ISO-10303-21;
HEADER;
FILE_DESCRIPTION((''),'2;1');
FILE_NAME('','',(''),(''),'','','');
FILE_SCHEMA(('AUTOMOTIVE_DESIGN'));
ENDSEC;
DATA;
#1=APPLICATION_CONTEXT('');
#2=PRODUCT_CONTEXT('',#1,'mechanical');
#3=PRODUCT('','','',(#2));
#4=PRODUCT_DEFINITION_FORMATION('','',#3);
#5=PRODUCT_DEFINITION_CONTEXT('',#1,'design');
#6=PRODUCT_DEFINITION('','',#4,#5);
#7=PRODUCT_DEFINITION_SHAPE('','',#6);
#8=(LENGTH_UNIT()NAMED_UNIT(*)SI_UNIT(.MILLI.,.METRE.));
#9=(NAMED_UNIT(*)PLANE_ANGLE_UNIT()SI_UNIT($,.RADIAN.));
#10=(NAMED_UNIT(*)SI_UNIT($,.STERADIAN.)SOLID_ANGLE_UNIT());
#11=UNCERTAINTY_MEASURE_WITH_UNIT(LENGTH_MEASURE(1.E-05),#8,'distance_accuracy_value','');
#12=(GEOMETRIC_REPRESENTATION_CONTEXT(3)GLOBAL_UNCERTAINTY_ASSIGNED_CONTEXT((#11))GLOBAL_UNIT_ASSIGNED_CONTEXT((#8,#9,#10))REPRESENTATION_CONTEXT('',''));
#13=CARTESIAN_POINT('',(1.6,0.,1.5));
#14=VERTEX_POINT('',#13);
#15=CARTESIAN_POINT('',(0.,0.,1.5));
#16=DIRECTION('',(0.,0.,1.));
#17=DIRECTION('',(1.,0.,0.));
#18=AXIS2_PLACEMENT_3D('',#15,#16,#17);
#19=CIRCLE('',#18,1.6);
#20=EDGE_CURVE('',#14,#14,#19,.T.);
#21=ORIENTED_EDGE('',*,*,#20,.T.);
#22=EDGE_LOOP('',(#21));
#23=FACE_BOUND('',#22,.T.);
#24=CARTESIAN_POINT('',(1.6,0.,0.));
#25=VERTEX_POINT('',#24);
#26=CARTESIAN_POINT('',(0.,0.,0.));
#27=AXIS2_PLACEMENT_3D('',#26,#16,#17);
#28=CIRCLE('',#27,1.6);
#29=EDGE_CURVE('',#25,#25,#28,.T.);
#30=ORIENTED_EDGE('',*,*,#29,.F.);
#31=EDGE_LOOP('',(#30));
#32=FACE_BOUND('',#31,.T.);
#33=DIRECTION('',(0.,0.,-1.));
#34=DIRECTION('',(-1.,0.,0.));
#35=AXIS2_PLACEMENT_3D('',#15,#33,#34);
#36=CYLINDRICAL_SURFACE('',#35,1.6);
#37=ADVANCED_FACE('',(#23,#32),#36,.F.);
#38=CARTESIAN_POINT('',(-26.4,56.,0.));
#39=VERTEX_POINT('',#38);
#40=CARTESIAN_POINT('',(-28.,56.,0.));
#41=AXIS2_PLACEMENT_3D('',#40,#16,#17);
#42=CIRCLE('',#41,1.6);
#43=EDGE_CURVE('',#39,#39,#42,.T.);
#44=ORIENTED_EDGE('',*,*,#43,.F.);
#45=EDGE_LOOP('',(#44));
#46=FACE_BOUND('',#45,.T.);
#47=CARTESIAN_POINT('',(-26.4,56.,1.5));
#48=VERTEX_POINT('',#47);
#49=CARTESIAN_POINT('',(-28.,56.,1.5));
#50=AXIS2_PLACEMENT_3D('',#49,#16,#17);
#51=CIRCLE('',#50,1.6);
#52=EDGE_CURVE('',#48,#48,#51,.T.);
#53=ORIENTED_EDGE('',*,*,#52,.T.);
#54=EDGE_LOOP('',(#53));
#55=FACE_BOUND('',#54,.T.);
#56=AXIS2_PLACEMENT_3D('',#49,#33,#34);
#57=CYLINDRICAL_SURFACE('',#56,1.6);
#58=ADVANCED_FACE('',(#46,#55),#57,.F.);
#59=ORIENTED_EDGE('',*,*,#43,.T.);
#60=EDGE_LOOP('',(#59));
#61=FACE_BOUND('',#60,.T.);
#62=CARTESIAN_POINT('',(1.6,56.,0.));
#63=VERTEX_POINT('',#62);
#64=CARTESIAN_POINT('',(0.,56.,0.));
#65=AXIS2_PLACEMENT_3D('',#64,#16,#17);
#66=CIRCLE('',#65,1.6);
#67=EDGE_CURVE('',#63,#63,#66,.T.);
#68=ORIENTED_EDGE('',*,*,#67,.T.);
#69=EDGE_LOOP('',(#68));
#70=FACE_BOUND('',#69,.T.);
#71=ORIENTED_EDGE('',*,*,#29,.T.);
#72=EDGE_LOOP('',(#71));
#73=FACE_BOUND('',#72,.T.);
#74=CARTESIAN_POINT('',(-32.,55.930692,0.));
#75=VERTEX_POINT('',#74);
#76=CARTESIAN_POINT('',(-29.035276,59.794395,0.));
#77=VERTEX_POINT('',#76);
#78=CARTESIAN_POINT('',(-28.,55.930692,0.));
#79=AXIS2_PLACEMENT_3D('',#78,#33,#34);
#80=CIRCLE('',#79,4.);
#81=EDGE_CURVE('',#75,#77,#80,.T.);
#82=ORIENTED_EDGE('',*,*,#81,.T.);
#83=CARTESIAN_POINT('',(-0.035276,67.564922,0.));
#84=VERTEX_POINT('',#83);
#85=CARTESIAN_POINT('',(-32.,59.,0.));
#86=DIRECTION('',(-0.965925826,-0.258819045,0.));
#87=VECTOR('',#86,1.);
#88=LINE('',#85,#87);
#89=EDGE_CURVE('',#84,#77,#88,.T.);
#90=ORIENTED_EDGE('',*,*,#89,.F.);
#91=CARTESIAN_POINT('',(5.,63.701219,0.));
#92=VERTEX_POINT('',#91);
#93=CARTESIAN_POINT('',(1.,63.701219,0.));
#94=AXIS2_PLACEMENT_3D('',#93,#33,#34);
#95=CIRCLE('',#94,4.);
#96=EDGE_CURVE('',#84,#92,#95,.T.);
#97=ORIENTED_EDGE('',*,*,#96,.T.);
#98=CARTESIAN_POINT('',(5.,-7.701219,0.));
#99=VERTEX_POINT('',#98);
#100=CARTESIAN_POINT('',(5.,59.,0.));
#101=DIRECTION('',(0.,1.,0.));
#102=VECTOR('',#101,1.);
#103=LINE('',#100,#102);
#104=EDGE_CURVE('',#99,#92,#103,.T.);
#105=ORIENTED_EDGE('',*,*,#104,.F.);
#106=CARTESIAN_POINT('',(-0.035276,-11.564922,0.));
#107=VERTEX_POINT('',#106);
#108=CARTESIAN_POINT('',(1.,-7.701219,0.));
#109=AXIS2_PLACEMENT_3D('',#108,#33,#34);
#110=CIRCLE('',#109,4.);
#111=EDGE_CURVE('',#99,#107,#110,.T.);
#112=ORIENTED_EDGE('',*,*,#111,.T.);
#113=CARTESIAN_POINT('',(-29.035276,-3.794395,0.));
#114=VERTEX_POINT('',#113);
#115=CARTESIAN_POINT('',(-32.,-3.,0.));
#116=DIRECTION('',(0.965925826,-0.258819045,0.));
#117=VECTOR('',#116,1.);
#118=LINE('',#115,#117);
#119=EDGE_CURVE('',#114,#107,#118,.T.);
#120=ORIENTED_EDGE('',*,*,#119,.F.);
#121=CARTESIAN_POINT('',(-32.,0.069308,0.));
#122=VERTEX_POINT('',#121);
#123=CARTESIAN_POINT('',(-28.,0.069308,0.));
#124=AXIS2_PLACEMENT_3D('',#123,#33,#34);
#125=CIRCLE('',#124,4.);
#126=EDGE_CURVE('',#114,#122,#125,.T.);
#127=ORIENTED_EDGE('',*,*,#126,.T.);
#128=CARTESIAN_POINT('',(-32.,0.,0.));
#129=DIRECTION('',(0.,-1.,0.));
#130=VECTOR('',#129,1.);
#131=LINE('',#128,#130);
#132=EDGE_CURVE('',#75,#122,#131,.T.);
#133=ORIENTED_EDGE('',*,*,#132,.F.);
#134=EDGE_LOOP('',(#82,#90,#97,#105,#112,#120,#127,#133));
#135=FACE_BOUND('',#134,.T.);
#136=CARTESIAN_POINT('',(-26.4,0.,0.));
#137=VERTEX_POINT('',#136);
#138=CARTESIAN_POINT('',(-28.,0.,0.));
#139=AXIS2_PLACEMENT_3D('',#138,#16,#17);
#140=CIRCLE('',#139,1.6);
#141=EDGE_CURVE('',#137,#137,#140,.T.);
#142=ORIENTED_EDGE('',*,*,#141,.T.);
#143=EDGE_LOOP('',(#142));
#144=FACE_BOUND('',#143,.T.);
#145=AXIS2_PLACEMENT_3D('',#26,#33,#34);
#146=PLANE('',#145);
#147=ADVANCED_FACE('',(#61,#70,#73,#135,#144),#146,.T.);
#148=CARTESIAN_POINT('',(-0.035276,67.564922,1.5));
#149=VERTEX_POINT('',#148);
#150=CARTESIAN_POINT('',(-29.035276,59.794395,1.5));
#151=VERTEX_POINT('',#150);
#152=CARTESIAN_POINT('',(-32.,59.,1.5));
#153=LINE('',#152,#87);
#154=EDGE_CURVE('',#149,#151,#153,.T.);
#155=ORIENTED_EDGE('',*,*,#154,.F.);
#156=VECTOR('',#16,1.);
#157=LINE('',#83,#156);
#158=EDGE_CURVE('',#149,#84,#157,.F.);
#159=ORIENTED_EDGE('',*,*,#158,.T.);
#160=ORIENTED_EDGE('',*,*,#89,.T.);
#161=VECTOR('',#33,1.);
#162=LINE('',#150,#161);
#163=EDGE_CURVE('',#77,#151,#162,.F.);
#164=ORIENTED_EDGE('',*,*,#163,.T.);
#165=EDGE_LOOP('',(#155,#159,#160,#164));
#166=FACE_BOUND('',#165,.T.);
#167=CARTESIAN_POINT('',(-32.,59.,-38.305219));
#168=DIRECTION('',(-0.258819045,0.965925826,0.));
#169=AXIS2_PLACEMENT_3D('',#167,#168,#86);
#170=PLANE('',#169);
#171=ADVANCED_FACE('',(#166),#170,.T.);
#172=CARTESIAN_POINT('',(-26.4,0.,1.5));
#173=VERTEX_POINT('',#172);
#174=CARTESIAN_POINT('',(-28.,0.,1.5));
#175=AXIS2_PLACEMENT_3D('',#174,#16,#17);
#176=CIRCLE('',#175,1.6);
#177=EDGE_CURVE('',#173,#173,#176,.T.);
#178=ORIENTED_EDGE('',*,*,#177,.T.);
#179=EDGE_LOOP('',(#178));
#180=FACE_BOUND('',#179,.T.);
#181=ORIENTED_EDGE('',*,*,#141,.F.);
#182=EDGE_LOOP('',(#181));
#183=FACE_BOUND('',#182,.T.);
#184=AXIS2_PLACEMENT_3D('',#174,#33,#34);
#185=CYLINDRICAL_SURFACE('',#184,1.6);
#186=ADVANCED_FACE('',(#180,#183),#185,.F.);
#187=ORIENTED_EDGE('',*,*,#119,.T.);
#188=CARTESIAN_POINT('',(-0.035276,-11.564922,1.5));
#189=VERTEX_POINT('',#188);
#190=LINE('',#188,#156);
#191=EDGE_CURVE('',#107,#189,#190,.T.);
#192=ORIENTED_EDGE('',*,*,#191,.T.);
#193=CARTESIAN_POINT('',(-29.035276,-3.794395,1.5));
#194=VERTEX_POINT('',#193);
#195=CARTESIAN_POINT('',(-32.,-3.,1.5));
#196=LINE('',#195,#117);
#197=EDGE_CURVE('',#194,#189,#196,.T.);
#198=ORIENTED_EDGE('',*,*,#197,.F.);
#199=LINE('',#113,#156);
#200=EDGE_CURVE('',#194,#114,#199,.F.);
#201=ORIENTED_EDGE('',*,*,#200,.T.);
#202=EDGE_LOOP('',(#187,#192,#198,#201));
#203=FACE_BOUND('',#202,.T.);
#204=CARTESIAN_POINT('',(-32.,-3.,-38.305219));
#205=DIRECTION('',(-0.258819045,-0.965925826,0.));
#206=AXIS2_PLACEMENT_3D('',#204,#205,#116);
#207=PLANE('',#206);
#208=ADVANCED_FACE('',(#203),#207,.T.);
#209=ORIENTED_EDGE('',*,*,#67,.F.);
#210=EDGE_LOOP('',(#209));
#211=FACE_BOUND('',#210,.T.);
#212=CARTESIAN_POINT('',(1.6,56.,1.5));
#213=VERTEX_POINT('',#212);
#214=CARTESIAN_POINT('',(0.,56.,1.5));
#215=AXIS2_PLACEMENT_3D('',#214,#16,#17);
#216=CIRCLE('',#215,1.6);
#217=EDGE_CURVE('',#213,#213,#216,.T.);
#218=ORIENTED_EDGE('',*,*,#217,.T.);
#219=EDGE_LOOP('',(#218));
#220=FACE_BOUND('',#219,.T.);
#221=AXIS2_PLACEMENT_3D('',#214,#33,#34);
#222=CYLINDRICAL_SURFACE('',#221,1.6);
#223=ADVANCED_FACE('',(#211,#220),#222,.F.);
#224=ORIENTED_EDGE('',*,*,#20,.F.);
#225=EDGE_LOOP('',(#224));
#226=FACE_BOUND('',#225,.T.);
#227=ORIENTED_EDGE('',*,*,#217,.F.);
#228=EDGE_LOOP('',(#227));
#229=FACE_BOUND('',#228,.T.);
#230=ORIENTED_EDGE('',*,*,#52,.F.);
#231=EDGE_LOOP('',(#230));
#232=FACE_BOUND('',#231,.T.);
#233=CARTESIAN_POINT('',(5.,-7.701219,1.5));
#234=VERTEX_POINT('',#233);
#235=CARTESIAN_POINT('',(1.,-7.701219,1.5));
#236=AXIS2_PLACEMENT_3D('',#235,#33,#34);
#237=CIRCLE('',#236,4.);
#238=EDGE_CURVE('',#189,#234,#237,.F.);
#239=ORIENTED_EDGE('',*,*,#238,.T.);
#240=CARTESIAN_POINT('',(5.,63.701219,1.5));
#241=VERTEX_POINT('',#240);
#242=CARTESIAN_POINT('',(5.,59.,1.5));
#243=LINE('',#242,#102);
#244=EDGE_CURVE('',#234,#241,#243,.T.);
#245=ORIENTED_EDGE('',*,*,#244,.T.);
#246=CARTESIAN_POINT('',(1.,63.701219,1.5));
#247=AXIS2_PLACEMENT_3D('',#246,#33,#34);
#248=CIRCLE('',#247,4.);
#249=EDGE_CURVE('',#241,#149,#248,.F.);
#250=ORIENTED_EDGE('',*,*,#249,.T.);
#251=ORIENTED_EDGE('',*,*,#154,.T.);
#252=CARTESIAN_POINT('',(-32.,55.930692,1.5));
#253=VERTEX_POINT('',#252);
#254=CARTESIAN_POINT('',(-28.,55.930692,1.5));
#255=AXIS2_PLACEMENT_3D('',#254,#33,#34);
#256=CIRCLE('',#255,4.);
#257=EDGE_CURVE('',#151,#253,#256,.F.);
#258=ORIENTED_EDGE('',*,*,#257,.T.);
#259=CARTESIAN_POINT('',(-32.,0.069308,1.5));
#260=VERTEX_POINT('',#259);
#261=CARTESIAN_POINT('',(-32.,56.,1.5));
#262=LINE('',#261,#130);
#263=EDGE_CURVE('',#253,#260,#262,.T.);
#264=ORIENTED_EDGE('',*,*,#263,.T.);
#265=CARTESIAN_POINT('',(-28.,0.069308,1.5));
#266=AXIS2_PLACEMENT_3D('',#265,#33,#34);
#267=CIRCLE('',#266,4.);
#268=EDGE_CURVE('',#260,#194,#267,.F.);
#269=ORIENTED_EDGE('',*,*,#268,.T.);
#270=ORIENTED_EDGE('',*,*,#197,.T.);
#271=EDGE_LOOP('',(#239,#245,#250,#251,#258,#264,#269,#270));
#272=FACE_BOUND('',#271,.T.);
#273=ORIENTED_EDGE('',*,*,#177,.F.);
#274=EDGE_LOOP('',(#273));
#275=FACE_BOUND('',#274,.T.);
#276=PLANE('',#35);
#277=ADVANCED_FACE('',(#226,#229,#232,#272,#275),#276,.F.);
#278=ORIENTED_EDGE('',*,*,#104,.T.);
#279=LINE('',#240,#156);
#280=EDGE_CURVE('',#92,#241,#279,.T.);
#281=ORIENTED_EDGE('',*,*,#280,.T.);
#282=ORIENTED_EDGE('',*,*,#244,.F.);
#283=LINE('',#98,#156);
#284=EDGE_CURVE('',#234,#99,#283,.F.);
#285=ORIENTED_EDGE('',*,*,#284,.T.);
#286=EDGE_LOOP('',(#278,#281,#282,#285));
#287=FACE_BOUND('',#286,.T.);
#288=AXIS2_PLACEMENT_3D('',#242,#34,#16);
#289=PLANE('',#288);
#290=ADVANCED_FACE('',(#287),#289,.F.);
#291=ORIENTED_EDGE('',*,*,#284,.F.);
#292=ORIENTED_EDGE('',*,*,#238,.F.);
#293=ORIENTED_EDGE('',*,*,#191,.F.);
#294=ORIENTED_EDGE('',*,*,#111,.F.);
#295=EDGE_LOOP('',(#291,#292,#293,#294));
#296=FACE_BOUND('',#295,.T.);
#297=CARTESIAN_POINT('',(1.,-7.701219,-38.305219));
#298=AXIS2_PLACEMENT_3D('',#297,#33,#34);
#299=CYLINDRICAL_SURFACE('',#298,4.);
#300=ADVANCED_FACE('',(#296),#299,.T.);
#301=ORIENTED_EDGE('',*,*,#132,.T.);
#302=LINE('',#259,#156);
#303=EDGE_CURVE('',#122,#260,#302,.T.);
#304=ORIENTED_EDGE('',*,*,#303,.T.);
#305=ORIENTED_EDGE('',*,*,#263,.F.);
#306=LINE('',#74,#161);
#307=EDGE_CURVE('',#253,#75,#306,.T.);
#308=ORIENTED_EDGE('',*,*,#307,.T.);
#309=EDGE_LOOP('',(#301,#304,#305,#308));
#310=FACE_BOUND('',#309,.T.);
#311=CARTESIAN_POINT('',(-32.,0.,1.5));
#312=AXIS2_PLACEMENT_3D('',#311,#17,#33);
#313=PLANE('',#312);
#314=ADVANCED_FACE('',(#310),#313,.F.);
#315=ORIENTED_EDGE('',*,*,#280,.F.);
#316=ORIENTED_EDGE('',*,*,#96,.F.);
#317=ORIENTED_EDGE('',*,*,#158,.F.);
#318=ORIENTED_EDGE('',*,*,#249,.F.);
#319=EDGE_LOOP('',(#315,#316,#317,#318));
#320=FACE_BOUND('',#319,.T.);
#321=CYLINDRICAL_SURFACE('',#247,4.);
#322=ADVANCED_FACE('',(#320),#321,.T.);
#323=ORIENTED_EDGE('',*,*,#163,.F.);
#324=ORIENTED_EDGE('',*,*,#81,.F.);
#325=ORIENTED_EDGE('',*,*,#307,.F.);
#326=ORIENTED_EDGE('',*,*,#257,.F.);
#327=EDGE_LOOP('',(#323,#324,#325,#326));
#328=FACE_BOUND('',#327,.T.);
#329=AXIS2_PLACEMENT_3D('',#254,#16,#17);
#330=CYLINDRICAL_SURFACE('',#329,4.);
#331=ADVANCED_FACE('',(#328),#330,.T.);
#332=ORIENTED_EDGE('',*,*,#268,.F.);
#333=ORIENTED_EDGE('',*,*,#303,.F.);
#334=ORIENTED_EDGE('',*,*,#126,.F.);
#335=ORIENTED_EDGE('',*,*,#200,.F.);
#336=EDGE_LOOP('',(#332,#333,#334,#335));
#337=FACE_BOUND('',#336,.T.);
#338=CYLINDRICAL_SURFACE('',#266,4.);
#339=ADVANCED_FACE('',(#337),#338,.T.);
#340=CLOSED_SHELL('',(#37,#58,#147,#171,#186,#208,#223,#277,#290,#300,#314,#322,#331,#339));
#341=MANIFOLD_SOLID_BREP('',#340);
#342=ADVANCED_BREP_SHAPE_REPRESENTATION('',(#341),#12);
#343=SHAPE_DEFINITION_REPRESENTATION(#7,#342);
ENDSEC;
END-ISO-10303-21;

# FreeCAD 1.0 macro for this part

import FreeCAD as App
import Part
import Sketcher
Q = App.Units.Quantity


def edges_at(feature, points):
    """Names of the edges that pass closest to the given points."""
    edges = feature.Shape.Edges
    near = lambda p: min(range(len(edges)), key=lambda i: edges[i].distToShape(Part.Vertex(*p))[0])
    return sorted({f"Edge{near(p) + 1}" for p in points})

doc = App.newDocument("Part")
body = doc.addObject("PartDesign::Body", "Body")

# Sketch on XY plane
sketch1 = doc.addObject("Sketcher::SketchObject", "Sketch")
body.addObject(sketch1)
sketch1.AttachmentSupport = (doc.XY_Plane, [""])
sketch1.MapMode = "FlatFace"
sketch1.addGeometry(Part.LineSegment(App.Vector(5, 59, 0), App.Vector(-32, 72.5, 0)), False)
sketch1.addGeometry(Part.LineSegment(App.Vector(-32, 72.5, 0), App.Vector(-32, -16.5, 0)), False)
sketch1.addGeometry(Part.LineSegment(App.Vector(-32, -16.5, 0), App.Vector(5, -3, 0)), False)
sketch1.addGeometry(Part.LineSegment(App.Vector(5, -3, 0), App.Vector(5, 59, 0)), False)
sketch1.addGeometry(Part.Circle(App.Vector(-28, 0, 0), App.Vector(0, 0, 1), 1.6), False)
sketch1.addGeometry(Part.Circle(App.Vector(0, 0, 0), App.Vector(0, 0, 1), 1.6), False)
sketch1.addGeometry(Part.Circle(App.Vector(-28, 56, 0), App.Vector(0, 0, 1), 1.6), False)
sketch1.addGeometry(Part.Circle(App.Vector(0, 56, 0), App.Vector(0, 0, 1), 1.6), False)
sketch1.addConstraint(Sketcher.Constraint("Coincident", 0, 2, 1, 1))
sketch1.addConstraint(Sketcher.Constraint("Coincident", 1, 2, 2, 1))
sketch1.addConstraint(Sketcher.Constraint("Coincident", 2, 2, 3, 1))
sketch1.addConstraint(Sketcher.Constraint("Coincident", 3, 2, 0, 1))
sketch1.addConstraint(Sketcher.Constraint("Vertical", 1))
sketch1.addConstraint(Sketcher.Constraint("Vertical", 3))
sketch1.addConstraint(Sketcher.Constraint("Coincident", 5, 3, -1, 1))
sketch1.addConstraint(Sketcher.Constraint("Equal", 4, 5))
sketch1.addConstraint(Sketcher.Constraint("Equal", 5, 6))
sketch1.addConstraint(Sketcher.Constraint("Equal", 6, 7))
sketch1.addConstraint(Sketcher.Constraint("PointOnObject", 4, 3, -1))
sketch1.addConstraint(Sketcher.Constraint("PointOnObject", 7, 3, -2))
sketch1.addConstraint(Sketcher.Constraint("Horizontal", 6, 3, 7, 3))
sketch1.addConstraint(Sketcher.Constraint("Vertical", 4, 3, 6, 3))
sketch1.addConstraint(Sketcher.Constraint("Equal", 0, 2))
sketch1.addConstraint(Sketcher.Constraint("Diameter", 4, Q("3.2 mm")))
sketch1.addConstraint(Sketcher.Constraint("DistanceY", 3, 1, 3, 2, Q("62 mm")))
sketch1.addConstraint(Sketcher.Constraint("Angle", 0, Q("160 deg")))
sketch1.addConstraint(Sketcher.Constraint("DistanceX", 4, 3, -1, 1, Q("28 mm")))
sketch1.addConstraint(Sketcher.Constraint("DistanceY", -1, 1, 6, 3, Q("56 mm")))
sketch1.addConstraint(Sketcher.Constraint("DistanceX", 0, 2, -1, 1, Q("32 mm")))
sketch1.addConstraint(Sketcher.Constraint("DistanceX", -1, 1, 2, 2, Q("5 mm")))
sketch1.addConstraint(Sketcher.Constraint("DistanceY", 2, 2, -1, 1, Q("3 mm")))
pad1 = doc.addObject("PartDesign::Pad", "Pad")
body.addObject(pad1)
pad1.Profile = sketch1
pad1.Length = 1.5

# Sketch on XY plane
sketch2 = doc.addObject("Sketcher::SketchObject", "Sketch001")
body.addObject(sketch2)
sketch2.AttachmentSupport = (doc.XY_Plane, [""])
sketch2.MapMode = "FlatFace"
sketch2.AttachmentOffset = App.Placement(App.Vector(0, 0, 1.5), App.Rotation())
sketch2.addGeometry(Part.LineSegment(App.Vector(-44, 59, 0), App.Vector(5, 59, 0)), False)
sketch2.addGeometry(Part.LineSegment(App.Vector(5, 59, 0), App.Vector(46, 71, 0)), False)
sketch2.addGeometry(Part.LineSegment(App.Vector(46, 71, 0), App.Vector(-44, 79, 0)), False)
sketch2.addGeometry(Part.LineSegment(App.Vector(-44, 79, 0), App.Vector(-44, 59, 0)), False)
sketch2.addGeometry(Part.LineSegment(App.Vector(5, -3, 0), App.Vector(-37, -3, 0)), False)
sketch2.addGeometry(Part.LineSegment(App.Vector(-37, -3, 0), App.Vector(-46, -23, 0)), False)
sketch2.addGeometry(Part.LineSegment(App.Vector(-46, -23, 0), App.Vector(23, -21, 0)), False)
sketch2.addGeometry(Part.LineSegment(App.Vector(23, -21, 0), App.Vector(5, -3, 0)), False)
sketch2.addConstraint(Sketcher.Constraint("Coincident", 0, 2, 1, 1))
sketch2.addConstraint(Sketcher.Constraint("Coincident", 1, 2, 2, 1))
sketch2.addConstraint(Sketcher.Constraint("Coincident", 2, 2, 3, 1))
sketch2.addConstraint(Sketcher.Constraint("Coincident", 3, 2, 0, 1))
sketch2.addConstraint(Sketcher.Constraint("Coincident", 4, 2, 5, 1))
sketch2.addConstraint(Sketcher.Constraint("Coincident", 5, 2, 6, 1))
sketch2.addConstraint(Sketcher.Constraint("Coincident", 6, 2, 7, 1))
sketch2.addConstraint(Sketcher.Constraint("Coincident", 7, 2, 4, 1))
sketch2.addConstraint(Sketcher.Constraint("Horizontal", 0))
sketch2.addConstraint(Sketcher.Constraint("Vertical", 3))
sketch2.addConstraint(Sketcher.Constraint("Horizontal", 4))
sketch2.addConstraint(Sketcher.Constraint("Vertical", 0, 2, 7, 2))
sketch2.addConstraint(Sketcher.Constraint("DistanceX", -1, 1, 0, 2, Q("5 mm")))
sketch2.addConstraint(Sketcher.Constraint("DistanceY", -1, 1, 0, 2, Q("59 mm")))
sketch2.addConstraint(Sketcher.Constraint("DistanceY", 4, 2, -1, 1, Q("3 mm")))
sketch2.addConstraint(Sketcher.Constraint("DistanceY", 3, 2, 3, 1, Q("20.14545 mm")))
sketch2.addConstraint(Sketcher.Constraint("DistanceY", 5, 2, -1, 1, Q("23.435701 mm")))
sketch2.addConstraint(Sketcher.Constraint("DistanceX", -1, 1, 6, 2, Q("23.1593 mm")))
sketch2.addConstraint(Sketcher.Constraint("Distance", 1, Q("42.774469 mm")))
sketch2.addConstraint(Sketcher.Constraint("Distance", 6, Q("68.74079 mm")))
sketch2.addConstraint(Sketcher.Constraint("Distance", 7, Q("25.85688 mm")))
sketch2.addConstraint(Sketcher.Constraint("DistanceX", 0, 1, 0, 2, Q("48.875673 mm")))
sketch2.addConstraint(Sketcher.Constraint("DistanceX", 4, 2, 4, 1, Q("41.907564 mm")))
sketch2.addConstraint(Sketcher.Constraint("DistanceX", -1, 1, 1, 2, Q("45.91591 mm")))
pocket1 = doc.addObject("PartDesign::Pocket", "Pocket")
body.addObject(pocket1)
pocket1.Profile = sketch2
pocket1.Length = 1.5

# Sketch on XY plane
sketch3 = doc.addObject("Sketcher::SketchObject", "Sketch002")
body.addObject(sketch3)
sketch3.AttachmentSupport = (doc.XY_Plane, [""])
sketch3.MapMode = "FlatFace"
sketch3.AttachmentOffset = App.Placement(App.Vector(0, 0, 1.5), App.Rotation())
sketch3.addGeometry(Part.LineSegment(App.Vector(5, 69, 0), App.Vector(-32, 59, 0)), False)
sketch3.addGeometry(Part.LineSegment(App.Vector(-32, 59, 0), App.Vector(5, 59, 0)), False)
sketch3.addGeometry(Part.LineSegment(App.Vector(5, 59, 0), App.Vector(5, 69, 0)), False)
sketch3.addGeometry(Part.LineSegment(App.Vector(5, -13, 0), App.Vector(5, -3, 0)), False)
sketch3.addGeometry(Part.LineSegment(App.Vector(5, -3, 0), App.Vector(-32, -3, 0)), False)
sketch3.addGeometry(Part.LineSegment(App.Vector(-32, -3, 0), App.Vector(5, -13, 0)), False)
sketch3.addConstraint(Sketcher.Constraint("Coincident", 0, 2, 1, 1))
sketch3.addConstraint(Sketcher.Constraint("Coincident", 1, 2, 2, 1))
sketch3.addConstraint(Sketcher.Constraint("Coincident", 2, 2, 0, 1))
sketch3.addConstraint(Sketcher.Constraint("Coincident", 3, 2, 4, 1))
sketch3.addConstraint(Sketcher.Constraint("Coincident", 4, 2, 5, 1))
sketch3.addConstraint(Sketcher.Constraint("Coincident", 5, 2, 3, 1))
sketch3.addConstraint(Sketcher.Constraint("Horizontal", 1))
sketch3.addConstraint(Sketcher.Constraint("Vertical", 2))
sketch3.addConstraint(Sketcher.Constraint("Vertical", 3))
sketch3.addConstraint(Sketcher.Constraint("Horizontal", 4))
sketch3.addConstraint(Sketcher.Constraint("Vertical", 2, 2, 3, 2))
sketch3.addConstraint(Sketcher.Constraint("Vertical", 0, 2, 4, 2))
sketch3.addConstraint(Sketcher.Constraint("Equal", 2, 3))
sketch3.addConstraint(Sketcher.Constraint("DistanceX", 1, 1, 1, 2, Q("37 mm")))
sketch3.addConstraint(Sketcher.Constraint("Angle", 0, Q("-165 deg")))
sketch3.addConstraint(Sketcher.Constraint("DistanceX", 0, 2, -1, 1, Q("32 mm")))
sketch3.addConstraint(Sketcher.Constraint("DistanceY", -1, 1, 0, 2, Q("59 mm")))
sketch3.addConstraint(Sketcher.Constraint("DistanceY", 3, 2, -1, 1, Q("3 mm")))
pad2 = doc.addObject("PartDesign::Pad", "Pad001")
body.addObject(pad2)
pad2.Profile = sketch3
pad2.Length = 1.5
pad2.Reversed = True
doc.recompute()

fillet = doc.addObject("PartDesign::Fillet", "Fillet")
body.addObject(fillet)
fillet.Base = (pad2, edges_at(pad2, [
    (-32, 59, 0.75),
    (-32, -3, 0.75),
    (5, 68.914, 0.75),
    (5, -12.914, 0.75),
]))
fillet.Radius = 4

doc.recompute()
